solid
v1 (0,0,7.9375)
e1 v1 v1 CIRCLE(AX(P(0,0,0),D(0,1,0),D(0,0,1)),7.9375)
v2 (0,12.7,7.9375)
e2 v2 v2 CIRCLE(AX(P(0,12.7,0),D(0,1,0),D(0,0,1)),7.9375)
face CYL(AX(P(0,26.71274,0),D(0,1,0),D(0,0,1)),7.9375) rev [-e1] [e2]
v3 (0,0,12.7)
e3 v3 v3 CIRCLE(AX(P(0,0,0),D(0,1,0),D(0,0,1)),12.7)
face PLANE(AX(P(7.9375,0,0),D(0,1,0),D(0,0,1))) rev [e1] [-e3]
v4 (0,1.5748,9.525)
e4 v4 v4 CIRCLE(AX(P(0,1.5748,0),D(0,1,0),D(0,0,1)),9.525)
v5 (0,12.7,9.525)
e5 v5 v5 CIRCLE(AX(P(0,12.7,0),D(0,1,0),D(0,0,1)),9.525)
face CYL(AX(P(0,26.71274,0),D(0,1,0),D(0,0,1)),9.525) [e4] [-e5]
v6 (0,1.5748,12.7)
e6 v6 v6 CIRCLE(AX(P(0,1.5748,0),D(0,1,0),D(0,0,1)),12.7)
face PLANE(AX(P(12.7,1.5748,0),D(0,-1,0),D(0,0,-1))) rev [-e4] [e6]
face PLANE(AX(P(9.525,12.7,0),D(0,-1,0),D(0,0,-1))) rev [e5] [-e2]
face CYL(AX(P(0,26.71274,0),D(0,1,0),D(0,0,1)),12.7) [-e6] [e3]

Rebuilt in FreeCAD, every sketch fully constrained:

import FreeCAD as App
import Part
import Sketcher
Q = App.Units.Quantity

doc = App.newDocument("Part")
body = doc.addObject("PartDesign::Body", "Body")

sketch1 = doc.addObject("Sketcher::SketchObject", "Sketch")
body.addObject(sketch1)
sketch1.AttachmentSupport = (doc.XY_Plane, [""])
sketch1.MapMode = "FlatFace"
sketch1.addGeometry(Part.LineSegment(App.Vector(7.9, 0, 0), App.Vector(12.7, 0, 0)), False)
sketch1.addGeometry(Part.LineSegment(App.Vector(12.7, 0, 0), App.Vector(12.7, 1.6, 0)), False)
sketch1.addGeometry(Part.LineSegment(App.Vector(12.7, 1.6, 0), App.Vector(9.5, 1.6, 0)), False)
sketch1.addGeometry(Part.LineSegment(App.Vector(9.5, 1.6, 0), App.Vector(9.5, 12.7, 0)), False)
sketch1.addGeometry(Part.LineSegment(App.Vector(9.5, 12.7, 0), App.Vector(7.9, 12.7, 0)), False)
sketch1.addGeometry(Part.LineSegment(App.Vector(7.9, 12.7, 0), App.Vector(7.9, 0, 0)), False)
sketch1.addConstraint(Sketcher.Constraint("Coincident", 0, 2, 1, 1))
sketch1.addConstraint(Sketcher.Constraint("Coincident", 1, 2, 2, 1))
sketch1.addConstraint(Sketcher.Constraint("Coincident", 2, 2, 3, 1))
sketch1.addConstraint(Sketcher.Constraint("Coincident", 3, 2, 4, 1))
sketch1.addConstraint(Sketcher.Constraint("Coincident", 4, 2, 5, 1))
sketch1.addConstraint(Sketcher.Constraint("Coincident", 5, 2, 0, 1))
sketch1.addConstraint(Sketcher.Constraint("Horizontal", 0))
sketch1.addConstraint(Sketcher.Constraint("Vertical", 1))
sketch1.addConstraint(Sketcher.Constraint("Horizontal", 2))
sketch1.addConstraint(Sketcher.Constraint("Vertical", 3))
sketch1.addConstraint(Sketcher.Constraint("Horizontal", 4))
sketch1.addConstraint(Sketcher.Constraint("Vertical", 5))
sketch1.addConstraint(Sketcher.Constraint("PointOnObject", 0, 2, -1))
sketch1.addConstraint(Sketcher.Constraint("DistanceY", 5, 2, 5, 1, Q("0.5 in")))
sketch1.addConstraint(Sketcher.Constraint("DistanceX", -1, 1, 0, 2, Q("0.5 in")))
sketch1.addConstraint(Sketcher.Constraint("DistanceX", 0, 1, 0, 2, Q("0.1875 in")))
sketch1.addConstraint(Sketcher.Constraint("DistanceX", 2, 2, 2, 1, Q("0.125 in")))
sketch1.addConstraint(Sketcher.Constraint("DistanceY", 1, 1, 1, 2, Q("0.062 in")))
revolution = doc.addObject("PartDesign::Revolution", "Revolution")
body.addObject(revolution)
revolution.Profile = sketch1
revolution.ReferenceAxis = (sketch1, ["V_Axis"])
revolution.Angle = 360

doc.recompute()
